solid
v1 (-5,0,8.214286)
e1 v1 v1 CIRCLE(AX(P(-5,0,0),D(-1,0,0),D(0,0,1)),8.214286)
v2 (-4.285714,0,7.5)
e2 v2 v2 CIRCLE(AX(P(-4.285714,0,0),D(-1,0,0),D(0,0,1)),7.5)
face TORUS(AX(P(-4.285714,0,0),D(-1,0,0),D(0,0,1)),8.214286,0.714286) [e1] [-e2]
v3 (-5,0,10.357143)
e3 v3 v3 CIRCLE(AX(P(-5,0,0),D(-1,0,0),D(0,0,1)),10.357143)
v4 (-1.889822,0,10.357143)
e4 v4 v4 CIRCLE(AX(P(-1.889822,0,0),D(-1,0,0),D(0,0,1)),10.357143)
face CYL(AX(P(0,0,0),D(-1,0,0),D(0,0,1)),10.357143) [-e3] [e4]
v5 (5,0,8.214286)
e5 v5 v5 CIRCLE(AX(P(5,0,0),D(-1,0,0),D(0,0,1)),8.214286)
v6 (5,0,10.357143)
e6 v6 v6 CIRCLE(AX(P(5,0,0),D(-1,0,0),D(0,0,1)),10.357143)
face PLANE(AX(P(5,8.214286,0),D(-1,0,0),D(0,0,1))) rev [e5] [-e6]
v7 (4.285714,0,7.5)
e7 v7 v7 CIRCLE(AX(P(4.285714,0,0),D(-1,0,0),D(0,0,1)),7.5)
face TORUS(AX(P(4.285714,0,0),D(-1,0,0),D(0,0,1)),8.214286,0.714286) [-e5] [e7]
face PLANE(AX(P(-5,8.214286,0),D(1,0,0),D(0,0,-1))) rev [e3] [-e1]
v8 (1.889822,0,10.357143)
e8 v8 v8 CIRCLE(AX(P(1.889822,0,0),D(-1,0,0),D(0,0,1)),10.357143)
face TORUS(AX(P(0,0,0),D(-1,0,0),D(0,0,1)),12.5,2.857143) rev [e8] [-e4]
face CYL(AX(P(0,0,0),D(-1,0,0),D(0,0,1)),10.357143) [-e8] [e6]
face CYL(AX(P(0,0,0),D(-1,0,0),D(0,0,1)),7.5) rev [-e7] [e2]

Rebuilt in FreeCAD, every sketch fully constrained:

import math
import FreeCAD as App
import Part
import Sketcher

V = App.Vector

doc = App.newDocument("Part")
params = doc.addObject("Spreadsheet::Sheet", "Params")
for row, (alias, value) in enumerate([
    ("revolution_angle", "360 deg"),
], start=1):
    params.set(f"A{row}", alias)
    params.set(f"B{row}", "=" + value)
    params.setAlias(f"B{row}", alias)

body = doc.addObject("PartDesign::Body", "Body")

# Sketch on XY plane
sketch1 = body.newObject("Sketcher::SketchObject", "Sketch")
sketch1.AttachmentSupport = (doc.getObject("XY_Plane"), [""])
sketch1.MapMode = "FlatFace"
sketch1.addGeometry([
    Part.LineSegment(V(-4.3, 7.5, 0), V(4.3, 7.5, 0)),  # 0
    Part.ArcOfCircle(Part.Circle(V(4.3, 8.2, 0), V(0, 0, 1), 0.7), math.radians(-90), math.radians(0)),  # 1
    Part.LineSegment(V(5, 8.2, 0), V(5, 10.4, 0)),  # 2
    Part.LineSegment(V(5, 10.4, 0), V(1.9, 10.4, 0)),  # 3
    Part.ArcOfCircle(Part.Circle(V(0, 12.5, 0), V(0, 0, 1), 2.9), math.radians(-131), math.radians(-49)),  # 4
    Part.LineSegment(V(-1.9, 10.4, 0), V(-5, 10.4, 0)),  # 5
    Part.LineSegment(V(-5, 10.4, 0), V(-5, 8.2, 0)),  # 6
    Part.ArcOfCircle(Part.Circle(V(-4.3, 8.2, 0), V(0, 0, 1), 0.7), math.radians(180), math.radians(270)),  # 7
], False)
sketch1.addConstraint([
    Sketcher.Constraint("Tangent", 0, 2, 1, 1),
    Sketcher.Constraint("Tangent", 1, 2, 2, 1),
    Sketcher.Constraint("Coincident", 2, 2, 3, 1),
    Sketcher.Constraint("Coincident", 3, 2, 4, 2),
    Sketcher.Constraint("Coincident", 4, 1, 5, 1),
    Sketcher.Constraint("Coincident", 5, 2, 6, 1),
    Sketcher.Constraint("Tangent", 6, 2, 7, 1),
    Sketcher.Constraint("Tangent", 7, 2, 0, 1),
    Sketcher.Constraint("Horizontal", 0),
    Sketcher.Constraint("Vertical", 2),
    Sketcher.Constraint("Horizontal", 3),
    Sketcher.Constraint("Horizontal", 5),
    Sketcher.Constraint("Vertical", 6),
    Sketcher.Constraint("Equal", 1, 7),
    Sketcher.Constraint("Symmetric", 3, 2, 4, 1, -2),
    Sketcher.Constraint("Equal", 3, 5),
    Sketcher.Constraint("DistanceX", -1, 1, 1, 2, 5.0),
    Sketcher.Constraint("DistanceY", 0, 2, 4, 3, 5.0),
    Sketcher.Constraint("DistanceY", -1, 1, 4, 3, 12.5),
    Sketcher.Constraint("Radius", 1, 0.714286),
    Sketcher.Constraint("Radius", 4, 2.857143),
    Sketcher.Constraint("DistanceX", 3, 2, 3, 1, 3.110178),
])
revolution = body.newObject("PartDesign::Revolution", "Revolution")
revolution.Profile = sketch1
revolution.ReferenceAxis = (sketch1, ["H_Axis"])
revolution.setExpression("Angle", "Params.revolution_angle")

doc.recompute()
